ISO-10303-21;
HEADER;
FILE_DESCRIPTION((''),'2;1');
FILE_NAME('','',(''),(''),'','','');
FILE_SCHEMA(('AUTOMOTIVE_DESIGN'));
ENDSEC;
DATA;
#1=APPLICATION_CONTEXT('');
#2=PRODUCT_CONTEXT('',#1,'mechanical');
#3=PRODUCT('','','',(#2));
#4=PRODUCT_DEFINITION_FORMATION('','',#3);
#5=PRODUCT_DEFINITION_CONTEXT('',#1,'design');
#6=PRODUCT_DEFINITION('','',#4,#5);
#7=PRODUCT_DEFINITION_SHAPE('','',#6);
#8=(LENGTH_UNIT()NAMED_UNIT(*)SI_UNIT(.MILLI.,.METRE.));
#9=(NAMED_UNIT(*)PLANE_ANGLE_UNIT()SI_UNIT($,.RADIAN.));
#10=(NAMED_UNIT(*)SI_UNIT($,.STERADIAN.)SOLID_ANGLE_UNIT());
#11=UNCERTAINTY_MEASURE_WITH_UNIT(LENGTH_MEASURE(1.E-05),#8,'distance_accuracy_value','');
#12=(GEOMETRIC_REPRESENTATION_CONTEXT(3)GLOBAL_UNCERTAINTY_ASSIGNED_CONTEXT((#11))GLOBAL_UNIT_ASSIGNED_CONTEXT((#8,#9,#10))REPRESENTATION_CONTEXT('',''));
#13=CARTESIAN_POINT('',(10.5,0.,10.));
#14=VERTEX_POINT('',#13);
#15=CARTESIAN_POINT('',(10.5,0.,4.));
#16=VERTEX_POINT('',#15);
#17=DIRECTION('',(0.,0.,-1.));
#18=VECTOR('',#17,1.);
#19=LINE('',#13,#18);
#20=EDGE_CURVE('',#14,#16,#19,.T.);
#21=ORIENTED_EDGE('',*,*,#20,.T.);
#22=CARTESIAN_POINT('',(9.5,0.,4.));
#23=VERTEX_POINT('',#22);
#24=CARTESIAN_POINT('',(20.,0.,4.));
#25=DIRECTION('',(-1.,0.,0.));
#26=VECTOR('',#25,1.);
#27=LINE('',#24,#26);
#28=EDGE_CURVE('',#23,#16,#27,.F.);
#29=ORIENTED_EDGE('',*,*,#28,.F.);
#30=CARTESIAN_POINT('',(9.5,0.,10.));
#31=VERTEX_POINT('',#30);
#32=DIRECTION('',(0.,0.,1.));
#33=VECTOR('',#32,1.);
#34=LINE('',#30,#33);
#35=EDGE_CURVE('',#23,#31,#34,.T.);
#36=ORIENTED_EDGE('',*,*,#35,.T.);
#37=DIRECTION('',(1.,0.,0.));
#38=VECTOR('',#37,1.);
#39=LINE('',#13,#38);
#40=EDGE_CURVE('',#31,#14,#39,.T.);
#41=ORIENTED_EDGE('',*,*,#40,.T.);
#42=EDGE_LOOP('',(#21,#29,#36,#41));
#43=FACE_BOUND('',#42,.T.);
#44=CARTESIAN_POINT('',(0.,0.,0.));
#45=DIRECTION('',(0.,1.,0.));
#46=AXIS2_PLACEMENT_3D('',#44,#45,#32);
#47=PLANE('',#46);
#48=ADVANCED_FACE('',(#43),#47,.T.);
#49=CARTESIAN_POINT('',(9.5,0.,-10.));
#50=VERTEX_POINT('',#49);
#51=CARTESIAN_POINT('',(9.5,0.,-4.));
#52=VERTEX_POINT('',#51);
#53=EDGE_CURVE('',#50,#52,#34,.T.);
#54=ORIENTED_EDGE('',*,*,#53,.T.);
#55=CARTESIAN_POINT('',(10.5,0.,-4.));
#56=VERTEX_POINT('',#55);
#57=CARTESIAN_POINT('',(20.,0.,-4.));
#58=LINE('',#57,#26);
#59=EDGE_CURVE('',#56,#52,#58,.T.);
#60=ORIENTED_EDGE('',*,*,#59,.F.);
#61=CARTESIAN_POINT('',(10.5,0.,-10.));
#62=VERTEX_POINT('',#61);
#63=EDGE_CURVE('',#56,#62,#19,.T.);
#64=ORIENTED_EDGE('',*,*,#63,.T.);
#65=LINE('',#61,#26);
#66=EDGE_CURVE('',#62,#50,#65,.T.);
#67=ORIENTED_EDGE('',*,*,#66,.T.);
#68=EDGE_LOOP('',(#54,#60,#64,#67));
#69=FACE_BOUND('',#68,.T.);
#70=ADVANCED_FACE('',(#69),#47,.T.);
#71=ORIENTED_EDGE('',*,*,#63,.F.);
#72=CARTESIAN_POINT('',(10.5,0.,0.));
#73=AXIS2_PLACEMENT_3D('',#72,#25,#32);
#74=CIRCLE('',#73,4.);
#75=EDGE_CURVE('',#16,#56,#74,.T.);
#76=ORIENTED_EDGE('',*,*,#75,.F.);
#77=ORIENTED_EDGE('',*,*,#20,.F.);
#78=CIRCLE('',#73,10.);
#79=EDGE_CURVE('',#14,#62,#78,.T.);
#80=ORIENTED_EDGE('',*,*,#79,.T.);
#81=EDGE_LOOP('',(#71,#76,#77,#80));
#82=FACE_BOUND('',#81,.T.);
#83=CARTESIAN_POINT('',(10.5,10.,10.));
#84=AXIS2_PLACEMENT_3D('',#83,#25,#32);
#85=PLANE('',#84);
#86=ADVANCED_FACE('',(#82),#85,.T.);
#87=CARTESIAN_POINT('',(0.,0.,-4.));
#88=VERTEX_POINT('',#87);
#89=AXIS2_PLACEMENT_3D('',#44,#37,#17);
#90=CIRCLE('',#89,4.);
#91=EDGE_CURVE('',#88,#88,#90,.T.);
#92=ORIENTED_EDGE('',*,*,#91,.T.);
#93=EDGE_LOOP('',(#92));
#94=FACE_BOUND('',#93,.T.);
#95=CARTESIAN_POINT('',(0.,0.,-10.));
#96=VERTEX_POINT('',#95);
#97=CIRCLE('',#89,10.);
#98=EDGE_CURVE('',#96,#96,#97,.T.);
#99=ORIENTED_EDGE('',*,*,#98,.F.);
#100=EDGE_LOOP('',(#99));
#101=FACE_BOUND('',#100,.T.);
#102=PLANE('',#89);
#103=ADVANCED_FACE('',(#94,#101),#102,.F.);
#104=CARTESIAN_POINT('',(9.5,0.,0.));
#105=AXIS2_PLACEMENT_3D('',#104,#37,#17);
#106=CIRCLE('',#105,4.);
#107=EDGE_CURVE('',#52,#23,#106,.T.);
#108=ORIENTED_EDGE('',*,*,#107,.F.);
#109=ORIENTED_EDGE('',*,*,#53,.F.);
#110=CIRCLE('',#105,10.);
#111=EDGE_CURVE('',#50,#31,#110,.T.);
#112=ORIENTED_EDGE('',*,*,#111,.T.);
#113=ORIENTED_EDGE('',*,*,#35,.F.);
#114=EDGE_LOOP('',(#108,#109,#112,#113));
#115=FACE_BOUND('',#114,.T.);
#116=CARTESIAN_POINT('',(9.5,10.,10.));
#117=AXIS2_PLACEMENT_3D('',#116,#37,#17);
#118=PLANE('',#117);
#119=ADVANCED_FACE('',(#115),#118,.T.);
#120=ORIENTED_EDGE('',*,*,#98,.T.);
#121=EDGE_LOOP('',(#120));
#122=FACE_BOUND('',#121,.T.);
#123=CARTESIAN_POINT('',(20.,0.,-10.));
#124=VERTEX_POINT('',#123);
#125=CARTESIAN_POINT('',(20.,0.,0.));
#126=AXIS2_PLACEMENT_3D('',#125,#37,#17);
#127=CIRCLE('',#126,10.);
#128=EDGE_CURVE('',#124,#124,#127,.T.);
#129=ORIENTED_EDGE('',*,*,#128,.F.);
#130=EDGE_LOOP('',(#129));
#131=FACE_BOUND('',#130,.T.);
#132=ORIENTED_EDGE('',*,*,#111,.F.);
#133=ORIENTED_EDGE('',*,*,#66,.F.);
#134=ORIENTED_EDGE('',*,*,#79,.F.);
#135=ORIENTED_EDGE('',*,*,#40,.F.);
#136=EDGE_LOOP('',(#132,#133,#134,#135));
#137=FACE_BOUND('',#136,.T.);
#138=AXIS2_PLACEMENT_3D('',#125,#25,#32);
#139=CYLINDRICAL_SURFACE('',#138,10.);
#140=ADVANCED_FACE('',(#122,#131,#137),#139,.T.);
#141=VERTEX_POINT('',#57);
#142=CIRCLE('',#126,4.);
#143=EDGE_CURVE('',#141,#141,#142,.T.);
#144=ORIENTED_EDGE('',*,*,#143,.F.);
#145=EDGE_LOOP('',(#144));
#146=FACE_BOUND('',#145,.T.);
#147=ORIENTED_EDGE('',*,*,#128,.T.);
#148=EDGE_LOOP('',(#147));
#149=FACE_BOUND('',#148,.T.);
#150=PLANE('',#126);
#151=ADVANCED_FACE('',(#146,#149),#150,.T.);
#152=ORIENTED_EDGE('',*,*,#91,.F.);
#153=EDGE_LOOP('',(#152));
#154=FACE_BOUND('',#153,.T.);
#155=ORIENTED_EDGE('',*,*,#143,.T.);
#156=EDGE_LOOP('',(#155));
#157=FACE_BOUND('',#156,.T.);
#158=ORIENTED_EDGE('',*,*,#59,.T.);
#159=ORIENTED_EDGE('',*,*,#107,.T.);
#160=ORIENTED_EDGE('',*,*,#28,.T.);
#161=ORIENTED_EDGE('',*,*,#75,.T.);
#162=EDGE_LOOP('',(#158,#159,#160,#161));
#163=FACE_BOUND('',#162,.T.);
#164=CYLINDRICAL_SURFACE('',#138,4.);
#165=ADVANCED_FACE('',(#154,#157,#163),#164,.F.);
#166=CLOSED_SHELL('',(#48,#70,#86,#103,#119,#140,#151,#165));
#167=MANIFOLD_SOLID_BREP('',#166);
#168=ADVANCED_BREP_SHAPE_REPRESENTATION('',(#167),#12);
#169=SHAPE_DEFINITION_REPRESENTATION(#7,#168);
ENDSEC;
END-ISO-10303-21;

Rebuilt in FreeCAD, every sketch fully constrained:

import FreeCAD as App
import Part
import Sketcher
from FreeCAD import Vector

doc = App.newDocument("Part")
body = doc.addObject("PartDesign::Body", "Body")

sketch1 = body.newObject("Sketcher::SketchObject", "Sketch")
sketch1.AttachmentSupport = (doc.getObject("YZ_Plane"), [""])
sketch1.MapMode = "FlatFace"
sketch1.addGeometry(Part.Circle(Vector(0, 0, 0), Vector(0, 0, 1), 10), False)
sketch1.addGeometry(Part.Circle(Vector(0, 0, 0), Vector(0, 0, 1), 4), False)
sketch1.addConstraint(Sketcher.Constraint("Coincident", 0, 3, -1, 1))
sketch1.addConstraint(Sketcher.Constraint("Coincident", 1, 3, -1, 1))
sketch1.addConstraint(Sketcher.Constraint("Diameter", 0, 20.0))
sketch1.addConstraint(Sketcher.Constraint("Diameter", 1, 8.0))
pad1 = body.newObject("PartDesign::Pad", "Pad")
pad1.Profile = sketch1
pad1.Length = 20

sketch2 = body.newObject("Sketcher::SketchObject", "Sketch001")
sketch2.AttachmentSupport = (doc.getObject("XZ_Plane"), [""])
sketch2.MapMode = "FlatFace"
sketch2.addGeometry(Part.LineSegment(Vector(9.5, -10, 0), Vector(9.5, 10, 0)), False)
sketch2.addGeometry(Part.LineSegment(Vector(9.5, 10, 0), Vector(10.5, 10, 0)), False)
sketch2.addGeometry(Part.LineSegment(Vector(10.5, 10, 0), Vector(10.5, -10, 0)), False)
sketch2.addGeometry(Part.LineSegment(Vector(10.5, -10, 0), Vector(9.5, -10, 0)), False)
sketch2.addConstraint(Sketcher.Constraint("Coincident", 0, 2, 1, 1))
sketch2.addConstraint(Sketcher.Constraint("Coincident", 1, 2, 2, 1))
sketch2.addConstraint(Sketcher.Constraint("Coincident", 2, 2, 3, 1))
sketch2.addConstraint(Sketcher.Constraint("Coincident", 3, 2, 0, 1))
sketch2.addConstraint(Sketcher.Constraint("Vertical", 0))
sketch2.addConstraint(Sketcher.Constraint("Horizontal", 1))
sketch2.addConstraint(Sketcher.Constraint("Vertical", 2))
sketch2.addConstraint(Sketcher.Constraint("Horizontal", 3))
sketch2.addConstraint(Sketcher.Constraint("DistanceX", 1, 1, 1, 2, 1.0))
sketch2.addConstraint(Sketcher.Constraint("DistanceY", 0, 1, 0, 2, 20.0))
sketch2.addConstraint(Sketcher.Constraint("DistanceY", -1, 1, 0, 2, 10.0))
sketch2.addConstraint(Sketcher.Constraint("DistanceX", -1, 1, 0, 2, 9.5))
pocket1 = body.newObject("PartDesign::Pocket", "Pocket")
pocket1.Profile = sketch2
pocket1.Type = "ThroughAll"

doc.recompute()
